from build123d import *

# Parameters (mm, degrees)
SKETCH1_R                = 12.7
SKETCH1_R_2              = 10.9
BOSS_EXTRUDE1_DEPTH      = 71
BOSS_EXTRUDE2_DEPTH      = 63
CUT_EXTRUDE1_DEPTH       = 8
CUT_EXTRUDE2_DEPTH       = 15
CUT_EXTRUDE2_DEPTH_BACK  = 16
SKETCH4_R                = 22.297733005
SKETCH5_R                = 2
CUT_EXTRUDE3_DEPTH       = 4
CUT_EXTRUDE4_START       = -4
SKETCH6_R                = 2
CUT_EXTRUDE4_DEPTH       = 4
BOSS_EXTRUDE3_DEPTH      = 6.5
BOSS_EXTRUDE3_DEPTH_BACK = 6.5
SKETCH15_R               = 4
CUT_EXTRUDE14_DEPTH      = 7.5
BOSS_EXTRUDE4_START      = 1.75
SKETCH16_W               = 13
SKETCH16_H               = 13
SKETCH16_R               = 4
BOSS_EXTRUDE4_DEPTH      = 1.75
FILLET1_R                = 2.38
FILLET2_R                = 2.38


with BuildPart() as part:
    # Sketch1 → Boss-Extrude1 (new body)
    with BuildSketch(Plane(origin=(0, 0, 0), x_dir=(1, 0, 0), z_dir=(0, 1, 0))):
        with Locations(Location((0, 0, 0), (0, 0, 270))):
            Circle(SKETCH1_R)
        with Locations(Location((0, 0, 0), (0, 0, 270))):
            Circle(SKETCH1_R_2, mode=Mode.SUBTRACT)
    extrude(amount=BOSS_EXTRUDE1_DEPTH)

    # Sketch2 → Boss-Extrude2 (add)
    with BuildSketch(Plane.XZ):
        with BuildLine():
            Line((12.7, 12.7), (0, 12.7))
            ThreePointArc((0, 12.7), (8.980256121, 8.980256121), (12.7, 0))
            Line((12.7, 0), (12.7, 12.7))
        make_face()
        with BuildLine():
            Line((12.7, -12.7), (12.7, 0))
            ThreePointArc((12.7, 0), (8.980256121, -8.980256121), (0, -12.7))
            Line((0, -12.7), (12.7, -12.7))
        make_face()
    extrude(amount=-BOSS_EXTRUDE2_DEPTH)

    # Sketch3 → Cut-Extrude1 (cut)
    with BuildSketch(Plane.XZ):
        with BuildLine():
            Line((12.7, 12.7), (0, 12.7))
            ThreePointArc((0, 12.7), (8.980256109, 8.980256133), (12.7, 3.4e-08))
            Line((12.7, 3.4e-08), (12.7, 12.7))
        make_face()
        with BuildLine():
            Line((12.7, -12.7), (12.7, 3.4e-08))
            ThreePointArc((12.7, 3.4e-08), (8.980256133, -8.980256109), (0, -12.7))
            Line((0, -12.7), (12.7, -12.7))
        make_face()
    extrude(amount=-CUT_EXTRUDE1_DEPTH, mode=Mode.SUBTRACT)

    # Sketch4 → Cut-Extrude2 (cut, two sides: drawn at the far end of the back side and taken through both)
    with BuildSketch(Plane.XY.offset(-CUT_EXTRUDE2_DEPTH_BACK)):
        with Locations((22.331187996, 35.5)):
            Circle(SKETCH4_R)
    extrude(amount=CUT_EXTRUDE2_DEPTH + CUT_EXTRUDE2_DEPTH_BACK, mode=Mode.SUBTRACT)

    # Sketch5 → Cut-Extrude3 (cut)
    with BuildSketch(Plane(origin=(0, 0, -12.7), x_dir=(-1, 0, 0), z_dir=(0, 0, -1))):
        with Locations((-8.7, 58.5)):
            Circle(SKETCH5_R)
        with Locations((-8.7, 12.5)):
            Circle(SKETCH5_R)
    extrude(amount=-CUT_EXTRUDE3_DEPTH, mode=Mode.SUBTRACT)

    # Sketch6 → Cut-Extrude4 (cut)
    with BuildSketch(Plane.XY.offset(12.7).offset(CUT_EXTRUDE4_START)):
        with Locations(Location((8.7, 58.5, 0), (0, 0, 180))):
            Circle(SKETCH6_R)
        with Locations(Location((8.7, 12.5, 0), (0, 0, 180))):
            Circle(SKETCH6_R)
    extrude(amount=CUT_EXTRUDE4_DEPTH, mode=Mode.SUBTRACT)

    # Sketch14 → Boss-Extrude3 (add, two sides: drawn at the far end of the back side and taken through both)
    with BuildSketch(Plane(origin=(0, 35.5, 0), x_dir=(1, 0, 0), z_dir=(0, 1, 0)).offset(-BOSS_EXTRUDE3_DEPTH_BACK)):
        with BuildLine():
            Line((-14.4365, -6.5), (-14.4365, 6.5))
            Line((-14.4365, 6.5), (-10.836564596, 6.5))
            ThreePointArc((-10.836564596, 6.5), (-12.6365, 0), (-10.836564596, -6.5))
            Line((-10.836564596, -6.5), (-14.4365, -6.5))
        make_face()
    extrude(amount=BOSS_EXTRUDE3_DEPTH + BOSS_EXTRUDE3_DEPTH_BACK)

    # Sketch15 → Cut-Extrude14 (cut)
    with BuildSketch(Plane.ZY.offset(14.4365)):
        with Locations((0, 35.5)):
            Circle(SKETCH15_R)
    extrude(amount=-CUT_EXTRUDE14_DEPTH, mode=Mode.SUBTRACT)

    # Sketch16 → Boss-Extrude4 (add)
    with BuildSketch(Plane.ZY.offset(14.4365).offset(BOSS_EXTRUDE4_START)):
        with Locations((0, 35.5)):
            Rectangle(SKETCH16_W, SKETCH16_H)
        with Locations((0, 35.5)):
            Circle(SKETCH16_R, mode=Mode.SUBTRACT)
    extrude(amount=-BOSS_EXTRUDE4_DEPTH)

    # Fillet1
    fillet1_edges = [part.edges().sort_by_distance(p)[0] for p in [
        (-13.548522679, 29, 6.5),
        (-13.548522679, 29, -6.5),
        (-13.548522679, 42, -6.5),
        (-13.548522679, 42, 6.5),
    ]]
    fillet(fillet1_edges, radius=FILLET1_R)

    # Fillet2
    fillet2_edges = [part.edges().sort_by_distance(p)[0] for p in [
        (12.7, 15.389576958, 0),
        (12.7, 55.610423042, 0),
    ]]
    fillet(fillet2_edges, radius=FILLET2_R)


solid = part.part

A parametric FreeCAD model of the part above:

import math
import FreeCAD as App
import Part
import Sketcher


def edges_at(feature, points):
    """Names of the edges that pass closest to the given points."""
    edges = feature.Shape.Edges
    near = lambda p: min(range(len(edges)), key=lambda i: edges[i].distToShape(Part.Vertex(*p))[0])
    return sorted({f"Edge{near(p) + 1}" for p in points})


def add_polygon(sketch, points):
    """Adds a closed chain of lines whose ends are joined by coincident constraints."""
    first, n = sketch.GeometryCount, len(points)
    for a, b in zip(points, points[1:] + points[:1]):
        sketch.addGeometry(Part.LineSegment(App.Vector(*a, 0), App.Vector(*b, 0)), False)
    for i in range(n):
        sketch.addConstraint(Sketcher.Constraint("Coincident", first + i, 2, first + (i + 1) % n, 1))

doc = App.newDocument("Part")
body = doc.addObject("PartDesign::Body", "Body")

# Sketch on XZ plane
sketch1 = body.newObject("Sketcher::SketchObject", "Sketch")
sketch1.AttachmentSupport = (doc.getObject("XZ_Plane"), [""])
sketch1.MapMode = "FlatFace"
sketch1.addGeometry([
    Part.Circle(App.Vector(0, 0, 0), App.Vector(0, 0, 1), 12.7),
    Part.Circle(App.Vector(0, 0, 0), App.Vector(0, 0, 1), 10.9),
], False)
sketch1.addConstraint([
    Sketcher.Constraint("Coincident", 0, 3, -1, 1),
    Sketcher.Constraint("Coincident", 1, 3, -1, 1),
    Sketcher.Constraint("Diameter", 0, 25.4),
    Sketcher.Constraint("Diameter", 1, 21.8),
])
pad1 = body.newObject("PartDesign::Pad", "Pad")
pad1.Profile = sketch1
pad1.Length = 71
pad1.Reversed = True

# Sketch on XZ plane
sketch2 = body.newObject("Sketcher::SketchObject", "Sketch001")
sketch2.AttachmentSupport = (doc.getObject("XZ_Plane"), [""])
sketch2.MapMode = "FlatFace"
sketch2.addGeometry([
    Part.LineSegment(App.Vector(12.7, 12.7, 0), App.Vector(0, 12.7, 0)),  # 0
    Part.ArcOfCircle(Part.Circle(App.Vector(0, 0, 0), App.Vector(0, 0, 1), 12.7), math.radians(0), math.radians(90)),  # 1
    Part.LineSegment(App.Vector(12.7, 0, 0), App.Vector(12.7, 12.7, 0)),  # 2
    Part.LineSegment(App.Vector(12.7, -12.7, 0), App.Vector(12.7, 0, 0)),  # 3
    Part.ArcOfCircle(Part.Circle(App.Vector(0, 0, 0), App.Vector(0, 0, 1), 12.7), math.radians(-90), math.radians(0)),  # 4
    Part.LineSegment(App.Vector(0, -12.7, 0), App.Vector(12.7, -12.7, 0)),  # 5
], False)
sketch2.addConstraint([
    Sketcher.Constraint("Tangent", 0, 2, 1, 2),
    Sketcher.Constraint("Tangent", 1, 1, 2, 1),
    Sketcher.Constraint("Coincident", 2, 2, 0, 1),
    Sketcher.Constraint("Tangent", 3, 2, 4, 2),
    Sketcher.Constraint("Tangent", 4, 1, 5, 1),
    Sketcher.Constraint("Coincident", 5, 2, 3, 1),
    Sketcher.Constraint("Horizontal", 0),
    Sketcher.Constraint("Vertical", 2),
    Sketcher.Constraint("Vertical", 3),
    Sketcher.Constraint("Horizontal", 5),
    Sketcher.Constraint("Coincident", 1, 3, -1, 1),
    Sketcher.Constraint("Coincident", 4, 3, -1, 1),
    Sketcher.Constraint("Equal", 1, 4),
    Sketcher.Constraint("Radius", 1, 12.7),
])
pad2 = body.newObject("PartDesign::Pad", "Pad001")
pad2.Profile = sketch2
pad2.Length = 63
pad2.Reversed = True

# Sketch on XZ plane
sketch3 = body.newObject("Sketcher::SketchObject", "Sketch002")
sketch3.AttachmentSupport = (doc.getObject("XZ_Plane"), [""])
sketch3.MapMode = "FlatFace"
sketch3.addGeometry([
    Part.LineSegment(App.Vector(12.7, 12.7, 0), App.Vector(0, 12.7, 0)),  # 0
    Part.ArcOfCircle(Part.Circle(App.Vector(0, 0, 0), App.Vector(0, 0, 1), 12.7), math.radians(0), math.radians(90)),  # 1
    Part.LineSegment(App.Vector(12.7, 0, 0), App.Vector(12.7, 12.7, 0)),  # 2
    Part.LineSegment(App.Vector(12.7, -12.7, 0), App.Vector(12.7, 0, 0)),  # 3
    Part.ArcOfCircle(Part.Circle(App.Vector(0, 0, 0), App.Vector(0, 0, 1), 12.7), math.radians(-90), math.radians(0)),  # 4
    Part.LineSegment(App.Vector(0, -12.7, 0), App.Vector(12.7, -12.7, 0)),  # 5
], False)
sketch3.addConstraint([
    Sketcher.Constraint("Tangent", 0, 2, 1, 2),
    Sketcher.Constraint("Tangent", 1, 1, 2, 1),
    Sketcher.Constraint("Coincident", 2, 2, 0, 1),
    Sketcher.Constraint("Tangent", 3, 2, 4, 2),
    Sketcher.Constraint("Tangent", 4, 1, 5, 1),
    Sketcher.Constraint("Coincident", 5, 2, 3, 1),
    Sketcher.Constraint("Horizontal", 0),
    Sketcher.Constraint("Vertical", 2),
    Sketcher.Constraint("Vertical", 3),
    Sketcher.Constraint("Horizontal", 5),
    Sketcher.Constraint("Coincident", 1, 3, -1, 1),
    Sketcher.Constraint("Coincident", 4, 3, -1, 1),
    Sketcher.Constraint("Equal", 1, 4),
    Sketcher.Constraint("Radius", 1, 12.7),
])
pocket1 = body.newObject("PartDesign::Pocket", "Pocket")
pocket1.Profile = sketch3
pocket1.Length = 8

# Sketch on XY plane
sketch4 = body.newObject("Sketcher::SketchObject", "Sketch003")
sketch4.AttachmentSupport = (doc.getObject("XY_Plane"), [""])
sketch4.MapMode = "FlatFace"
sketch4.addGeometry(Part.Circle(App.Vector(22.331188, 35.5, 0), App.Vector(0, 0, 1), 22.297733), False)
sketch4.addConstraint([
    Sketcher.Constraint("DistanceY", -1, 1, 0, 3, 35.5),
    Sketcher.Constraint("Diameter", 0, 44.595466),
    Sketcher.Constraint("DistanceX", -1, 1, 0, 3, 22.331188),
])
pocket2 = body.newObject("PartDesign::Pocket", "Pocket001")
pocket2.Profile = sketch4
pocket2.Type = "ThroughAll"
pocket2.Midplane = True

# Sketch on XY plane
sketch5 = body.newObject("Sketcher::SketchObject", "Sketch004")
sketch5.AttachmentSupport = (doc.getObject("XY_Plane"), [""])
sketch5.MapMode = "FlatFace"
sketch5.AttachmentOffset = App.Placement(App.Vector(0, 0, -12.7), App.Rotation())
sketch5.addGeometry([
    Part.Circle(App.Vector(8.7, 58.5, 0), App.Vector(0, 0, 1), 2),
    Part.Circle(App.Vector(8.7, 12.5, 0), App.Vector(0, 0, 1), 2),
], False)
sketch5.addConstraint([
    Sketcher.Constraint("Equal", 0, 1),
    Sketcher.Constraint("Vertical", 0, 3, 1, 3),
    Sketcher.Constraint("Diameter", 0, 4.0),
    Sketcher.Constraint("DistanceY", 1, 3, 0, 3, 46.0),
    Sketcher.Constraint("DistanceX", -1, 1, 0, 3, 8.7),
    Sketcher.Constraint("DistanceY", -1, 1, 0, 3, 58.5),
])
pocket3 = body.newObject("PartDesign::Pocket", "Pocket002")
pocket3.Profile = sketch5
pocket3.Length = 4
pocket3.Reversed = True

# Sketch on XY plane
sketch6 = body.newObject("Sketcher::SketchObject", "Sketch005")
sketch6.AttachmentSupport = (doc.getObject("XY_Plane"), [""])
sketch6.MapMode = "FlatFace"
sketch6.AttachmentOffset = App.Placement(App.Vector(0, 0, 8.7), App.Rotation())
sketch6.addGeometry([
    Part.Circle(App.Vector(8.7, 58.5, 0), App.Vector(0, 0, 1), 2),
    Part.Circle(App.Vector(8.7, 12.5, 0), App.Vector(0, 0, 1), 2),
], False)
sketch6.addConstraint([
    Sketcher.Constraint("Equal", 0, 1),
    Sketcher.Constraint("Vertical", 0, 3, 1, 3),
    Sketcher.Constraint("Diameter", 0, 4.0),
    Sketcher.Constraint("DistanceY", 1, 3, 0, 3, 46.0),
    Sketcher.Constraint("DistanceX", -1, 1, 0, 3, 8.7),
    Sketcher.Constraint("DistanceY", -1, 1, 0, 3, 58.5),
])
pocket4 = body.newObject("PartDesign::Pocket", "Pocket003")
pocket4.Profile = sketch6
pocket4.Length = 4
pocket4.Reversed = True

# Sketch on XZ plane
sketch7 = body.newObject("Sketcher::SketchObject", "Sketch006")
sketch7.AttachmentSupport = (doc.getObject("XZ_Plane"), [""])
sketch7.MapMode = "FlatFace"
sketch7.AttachmentOffset = App.Placement(App.Vector(0, 0, -35.5), App.Rotation())
sketch7.addGeometry([
    Part.LineSegment(App.Vector(-14.4365, -6.5, 0), App.Vector(-14.4365, 6.5, 0)),
    Part.LineSegment(App.Vector(-14.4365, 6.5, 0), App.Vector(-10.836565, 6.5, 0)),
    Part.ArcOfCircle(Part.Circle(App.Vector(0, 0, 0), App.Vector(0, 0, 1), 12.6365), math.radians(149.043781), math.radians(210.956219)),
    Part.LineSegment(App.Vector(-10.836565, -6.5, 0), App.Vector(-14.4365, -6.5, 0)),
], False)
sketch7.addConstraint([
    Sketcher.Constraint("Coincident", 0, 2, 1, 1),
    Sketcher.Constraint("Coincident", 1, 2, 2, 1),
    Sketcher.Constraint("Coincident", 2, 2, 3, 1),
    Sketcher.Constraint("Coincident", 3, 2, 0, 1),
    Sketcher.Constraint("Vertical", 0),
    Sketcher.Constraint("Horizontal", 1),
    Sketcher.Constraint("Horizontal", 3),
    Sketcher.Constraint("Coincident", 2, 3, -1, 1),
    Sketcher.Constraint("Vertical", 1, 2, 2, 2),
    Sketcher.Constraint("DistanceY", 0, 1, 0, 2, 13.0),
    Sketcher.Constraint("Radius", 2, 12.6365),
    Sketcher.Constraint("DistanceX", 0, 2, -1, 1, 14.4365),
])
pad3 = body.newObject("PartDesign::Pad", "Pad002")
pad3.Profile = sketch7
pad3.Type = "TwoLengths"
pad3.Length = 6.5
pad3.Length2 = 6.5
pad3.Reversed = True

# Sketch on YZ plane
sketch8 = body.newObject("Sketcher::SketchObject", "Sketch007")
sketch8.AttachmentSupport = (doc.getObject("YZ_Plane"), [""])
sketch8.MapMode = "FlatFace"
sketch8.AttachmentOffset = App.Placement(App.Vector(0, 0, -14.4365), App.Rotation())
sketch8.addGeometry(Part.Circle(App.Vector(35.5, 0, 0), App.Vector(0, 0, 1), 4), False)
sketch8.addConstraint([
    Sketcher.Constraint("PointOnObject", 0, 3, -1),
    Sketcher.Constraint("Diameter", 0, 8.0),
    Sketcher.Constraint("DistanceX", -1, 1, 0, 3, 35.5),
])
pocket5 = body.newObject("PartDesign::Pocket", "Pocket004")
pocket5.Profile = sketch8
pocket5.Length = 7.5
pocket5.Reversed = True

# Sketch on YZ plane
sketch9 = body.newObject("Sketcher::SketchObject", "Sketch008")
sketch9.AttachmentSupport = (doc.getObject("YZ_Plane"), [""])
sketch9.MapMode = "FlatFace"
sketch9.AttachmentOffset = App.Placement(App.Vector(0, 0, -16.1865), App.Rotation())
add_polygon(sketch9, [(42, -6.5), (29, -6.5), (29, 6.5), (42, 6.5)])  # lines 0-3
sketch9.addGeometry(Part.Circle(App.Vector(35.5, 0, 0), App.Vector(0, 0, 1), 4), False)  # 4
sketch9.addConstraint([
    Sketcher.Constraint("Horizontal", 0),
    Sketcher.Constraint("Vertical", 1),
    Sketcher.Constraint("Horizontal", 2),
    Sketcher.Constraint("Vertical", 3),
    Sketcher.Constraint("PointOnObject", 4, 3, -1),
    Sketcher.Constraint("Equal", 2, 1),
    Sketcher.Constraint("Diameter", 4, 8.0),
    Sketcher.Constraint("DistanceX", 0, 2, 0, 1, 13.0),
    Sketcher.Constraint("DistanceX", -1, 1, 0, 2, 29.0),
    Sketcher.Constraint("DistanceX", -1, 1, 4, 3, 35.5),
    Sketcher.Constraint("DistanceY", 0, 2, -1, 1, 6.5),
])
pad4 = body.newObject("PartDesign::Pad", "Pad003")
pad4.Profile = sketch9
pad4.Length = 1.75
doc.recompute()

fillet = body.newObject("PartDesign::Fillet", "Fillet")
fillet.Base = (pad4, edges_at(pad4, [
    (-13.549, 29, 6.5),
    (-13.549, 29, -6.5),
    (-13.549, 42, -6.5),
    (-13.549, 42, 6.5),
]))
fillet.Radius = 2.38
doc.recompute()

fillet2 = body.newObject("PartDesign::Fillet", "Fillet001")
fillet2.Base = (fillet, edges_at(fillet, [(12.7, 15.39, 0), (12.7, 55.61, 0)]))
fillet2.Radius = 2.38

doc.recompute()
